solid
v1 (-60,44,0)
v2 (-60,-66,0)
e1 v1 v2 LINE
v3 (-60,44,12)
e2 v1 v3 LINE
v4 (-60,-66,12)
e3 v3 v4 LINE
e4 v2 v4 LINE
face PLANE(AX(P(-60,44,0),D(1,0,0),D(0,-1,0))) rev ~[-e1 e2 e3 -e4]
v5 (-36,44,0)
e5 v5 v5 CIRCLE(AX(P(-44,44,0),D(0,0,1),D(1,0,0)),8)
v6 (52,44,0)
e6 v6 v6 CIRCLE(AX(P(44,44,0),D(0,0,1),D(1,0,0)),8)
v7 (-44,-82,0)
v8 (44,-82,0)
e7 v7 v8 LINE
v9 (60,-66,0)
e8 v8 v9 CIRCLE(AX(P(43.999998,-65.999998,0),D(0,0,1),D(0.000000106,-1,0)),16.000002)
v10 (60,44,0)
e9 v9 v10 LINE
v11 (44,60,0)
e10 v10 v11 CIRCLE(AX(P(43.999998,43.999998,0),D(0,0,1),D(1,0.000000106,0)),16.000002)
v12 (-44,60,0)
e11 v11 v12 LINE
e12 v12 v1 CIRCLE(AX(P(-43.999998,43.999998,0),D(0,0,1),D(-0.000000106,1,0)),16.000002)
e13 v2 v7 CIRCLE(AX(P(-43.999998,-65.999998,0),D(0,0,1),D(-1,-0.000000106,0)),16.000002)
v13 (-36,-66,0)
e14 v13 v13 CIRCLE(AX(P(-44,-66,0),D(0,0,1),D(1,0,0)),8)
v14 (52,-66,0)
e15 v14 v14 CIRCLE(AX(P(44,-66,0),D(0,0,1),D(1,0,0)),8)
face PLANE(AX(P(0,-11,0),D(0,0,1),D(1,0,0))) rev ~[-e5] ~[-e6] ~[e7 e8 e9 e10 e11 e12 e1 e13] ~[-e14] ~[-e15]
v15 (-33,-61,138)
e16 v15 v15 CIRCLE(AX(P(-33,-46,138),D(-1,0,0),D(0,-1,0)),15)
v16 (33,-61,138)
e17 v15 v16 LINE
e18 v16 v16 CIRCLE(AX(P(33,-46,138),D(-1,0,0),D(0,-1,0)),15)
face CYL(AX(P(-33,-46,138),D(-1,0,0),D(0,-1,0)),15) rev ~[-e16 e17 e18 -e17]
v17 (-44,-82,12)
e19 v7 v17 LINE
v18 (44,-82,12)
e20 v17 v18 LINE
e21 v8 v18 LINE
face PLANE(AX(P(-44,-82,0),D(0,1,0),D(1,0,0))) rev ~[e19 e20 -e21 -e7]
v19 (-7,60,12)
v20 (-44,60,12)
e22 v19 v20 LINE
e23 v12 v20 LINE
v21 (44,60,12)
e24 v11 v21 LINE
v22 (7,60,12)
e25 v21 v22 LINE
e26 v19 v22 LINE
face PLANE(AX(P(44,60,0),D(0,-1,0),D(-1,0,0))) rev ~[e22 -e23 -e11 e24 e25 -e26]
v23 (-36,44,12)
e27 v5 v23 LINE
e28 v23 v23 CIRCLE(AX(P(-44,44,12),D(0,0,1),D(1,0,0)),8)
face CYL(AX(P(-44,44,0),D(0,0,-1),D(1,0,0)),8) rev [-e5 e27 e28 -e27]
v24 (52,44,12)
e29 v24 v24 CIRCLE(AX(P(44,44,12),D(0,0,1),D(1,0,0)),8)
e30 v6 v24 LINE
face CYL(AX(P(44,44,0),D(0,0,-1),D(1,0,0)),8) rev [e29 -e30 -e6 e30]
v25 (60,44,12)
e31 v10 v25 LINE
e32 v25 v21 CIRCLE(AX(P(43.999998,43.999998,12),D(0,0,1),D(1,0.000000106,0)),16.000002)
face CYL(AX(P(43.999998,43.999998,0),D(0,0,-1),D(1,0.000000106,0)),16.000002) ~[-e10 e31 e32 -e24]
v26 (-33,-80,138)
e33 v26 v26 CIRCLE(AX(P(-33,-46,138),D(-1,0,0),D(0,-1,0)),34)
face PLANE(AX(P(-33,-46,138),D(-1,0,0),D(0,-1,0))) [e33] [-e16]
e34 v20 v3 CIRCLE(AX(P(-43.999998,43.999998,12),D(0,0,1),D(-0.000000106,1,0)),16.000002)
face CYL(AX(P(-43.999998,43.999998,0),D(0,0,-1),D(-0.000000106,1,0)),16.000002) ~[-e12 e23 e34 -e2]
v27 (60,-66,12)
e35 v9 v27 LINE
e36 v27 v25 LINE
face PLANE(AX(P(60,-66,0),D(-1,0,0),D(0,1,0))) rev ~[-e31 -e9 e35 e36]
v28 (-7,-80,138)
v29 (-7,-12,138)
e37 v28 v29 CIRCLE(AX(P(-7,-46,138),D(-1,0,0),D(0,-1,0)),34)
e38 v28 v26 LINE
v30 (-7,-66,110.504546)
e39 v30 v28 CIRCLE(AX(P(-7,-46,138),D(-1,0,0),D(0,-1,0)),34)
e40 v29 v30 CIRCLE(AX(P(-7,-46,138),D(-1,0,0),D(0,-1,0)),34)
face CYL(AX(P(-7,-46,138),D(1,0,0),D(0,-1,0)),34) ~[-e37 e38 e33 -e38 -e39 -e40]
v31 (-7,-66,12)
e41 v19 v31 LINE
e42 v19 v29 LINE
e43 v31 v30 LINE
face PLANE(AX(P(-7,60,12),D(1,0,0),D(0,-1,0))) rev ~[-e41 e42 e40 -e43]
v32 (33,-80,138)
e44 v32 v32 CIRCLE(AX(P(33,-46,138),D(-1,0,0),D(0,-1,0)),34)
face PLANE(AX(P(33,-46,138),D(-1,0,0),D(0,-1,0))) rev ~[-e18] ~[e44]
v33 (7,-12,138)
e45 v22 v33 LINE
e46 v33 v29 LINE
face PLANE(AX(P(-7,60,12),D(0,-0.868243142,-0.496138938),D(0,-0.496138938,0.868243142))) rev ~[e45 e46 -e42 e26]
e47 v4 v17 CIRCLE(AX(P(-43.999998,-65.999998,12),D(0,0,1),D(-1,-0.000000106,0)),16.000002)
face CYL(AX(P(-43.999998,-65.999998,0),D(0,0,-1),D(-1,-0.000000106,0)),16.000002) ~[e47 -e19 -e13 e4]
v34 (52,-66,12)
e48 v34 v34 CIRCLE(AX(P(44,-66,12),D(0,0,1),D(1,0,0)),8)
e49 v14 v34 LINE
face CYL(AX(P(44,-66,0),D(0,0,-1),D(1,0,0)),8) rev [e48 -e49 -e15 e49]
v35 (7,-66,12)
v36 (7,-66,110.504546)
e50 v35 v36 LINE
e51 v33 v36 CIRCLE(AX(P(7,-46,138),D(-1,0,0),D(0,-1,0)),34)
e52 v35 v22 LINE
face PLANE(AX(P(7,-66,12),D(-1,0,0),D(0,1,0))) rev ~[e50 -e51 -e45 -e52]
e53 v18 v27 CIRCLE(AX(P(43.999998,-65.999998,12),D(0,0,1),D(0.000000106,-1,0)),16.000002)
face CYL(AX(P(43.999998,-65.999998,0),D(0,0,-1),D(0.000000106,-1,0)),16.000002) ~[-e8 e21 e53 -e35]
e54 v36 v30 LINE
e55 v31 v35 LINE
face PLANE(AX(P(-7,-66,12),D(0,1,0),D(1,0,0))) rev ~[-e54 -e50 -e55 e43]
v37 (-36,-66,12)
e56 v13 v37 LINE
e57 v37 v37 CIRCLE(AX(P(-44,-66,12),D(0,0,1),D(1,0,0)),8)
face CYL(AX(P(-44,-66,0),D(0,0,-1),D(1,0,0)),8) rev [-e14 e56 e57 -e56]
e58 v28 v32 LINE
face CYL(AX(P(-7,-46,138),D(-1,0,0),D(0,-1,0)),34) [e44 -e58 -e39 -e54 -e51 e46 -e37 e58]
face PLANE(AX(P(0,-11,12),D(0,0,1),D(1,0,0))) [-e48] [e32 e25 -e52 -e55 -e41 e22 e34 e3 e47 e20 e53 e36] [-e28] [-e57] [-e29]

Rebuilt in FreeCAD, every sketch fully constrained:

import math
import FreeCAD as App
import Part
import Sketcher
from FreeCAD import Vector
Q = App.Units.Quantity

doc = App.newDocument("Part")
body = doc.addObject("PartDesign::Body", "Body")

sketch1 = doc.addObject("Sketcher::SketchObject", "Sketch")
body.addObject(sketch1)
sketch1.AttachmentSupport = (doc.XY_Plane, [""])
sketch1.MapMode = "FlatFace"
sketch1.addGeometry(Part.ArcOfCircle(Part.Circle(Vector(-43.999998, -65.999998, 0), Vector(0, 0, 1), 16.000002), math.radians(-179.999994), math.radians(-90.000006)), False)
sketch1.addGeometry(Part.LineSegment(Vector(-44, -82, 0), Vector(44, -82, 0)), False)
sketch1.addGeometry(Part.ArcOfCircle(Part.Circle(Vector(43.999998, -65.999998, 0), Vector(0, 0, 1), 16.000002), math.radians(-89.999994), math.radians(-0.000006)), False)
sketch1.addGeometry(Part.LineSegment(Vector(60, -66, 0), Vector(60, 44, 0)), False)
sketch1.addGeometry(Part.ArcOfCircle(Part.Circle(Vector(43.999998, 43.999998, 0), Vector(0, 0, 1), 16.000002), math.radians(0.000006), math.radians(89.999994)), False)
sketch1.addGeometry(Part.LineSegment(Vector(44, 60, 0), Vector(-44, 60, 0)), False)
sketch1.addGeometry(Part.ArcOfCircle(Part.Circle(Vector(-43.999998, 43.999998, 0), Vector(0, 0, 1), 16.000002), math.radians(90.000006), math.radians(179.999994)), False)
sketch1.addGeometry(Part.LineSegment(Vector(-60, 44, 0), Vector(-60, -66, 0)), False)
sketch1.addGeometry(Part.Circle(Vector(-44, -66, 0), Vector(0, 0, 1), 8), False)
sketch1.addGeometry(Part.Circle(Vector(44, -66, 0), Vector(0, 0, 1), 8), False)
sketch1.addGeometry(Part.Circle(Vector(-44, 44, 0), Vector(0, 0, 1), 8), False)
sketch1.addGeometry(Part.Circle(Vector(44, 44, 0), Vector(0, 0, 1), 8), False)
sketch1.addConstraint(Sketcher.Constraint("Tangent", 0, 2, 1, 1))
sketch1.addConstraint(Sketcher.Constraint("Tangent", 1, 2, 2, 1))
sketch1.addConstraint(Sketcher.Constraint("Tangent", 2, 2, 3, 1))
sketch1.addConstraint(Sketcher.Constraint("Tangent", 3, 2, 4, 1))
sketch1.addConstraint(Sketcher.Constraint("Tangent", 4, 2, 5, 1))
sketch1.addConstraint(Sketcher.Constraint("Tangent", 5, 2, 6, 1))
sketch1.addConstraint(Sketcher.Constraint("Tangent", 6, 2, 7, 1))
sketch1.addConstraint(Sketcher.Constraint("Tangent", 7, 2, 0, 1))
sketch1.addConstraint(Sketcher.Constraint("Horizontal", 1))
sketch1.addConstraint(Sketcher.Constraint("Vertical", 3))
sketch1.addConstraint(Sketcher.Constraint("Horizontal", 5))
sketch1.addConstraint(Sketcher.Constraint("Vertical", 7))
sketch1.addConstraint(Sketcher.Constraint("Coincident", 8, 3, 0, 3))
sketch1.addConstraint(Sketcher.Constraint("Coincident", 9, 3, 2, 3))
sketch1.addConstraint(Sketcher.Constraint("Coincident", 10, 3, 6, 3))
sketch1.addConstraint(Sketcher.Constraint("Coincident", 11, 3, 4, 3))
sketch1.addConstraint(Sketcher.Constraint("Equal", 0, 2))
sketch1.addConstraint(Sketcher.Constraint("Equal", 2, 4))
sketch1.addConstraint(Sketcher.Constraint("Equal", 4, 6))
sketch1.addConstraint(Sketcher.Constraint("Equal", 8, 9))
sketch1.addConstraint(Sketcher.Constraint("Equal", 9, 10))
sketch1.addConstraint(Sketcher.Constraint("Equal", 10, 11))
sketch1.addConstraint(Sketcher.Constraint("Diameter", 8, Q("16 mm")))
sketch1.addConstraint(Sketcher.Constraint("Radius", 0, Q("16.000002 mm")))
sketch1.addConstraint(Sketcher.Constraint("DistanceX", 1, 1, 1, 2, Q("88 mm")))
sketch1.addConstraint(Sketcher.Constraint("DistanceY", 3, 1, 3, 2, Q("110 mm")))
sketch1.addConstraint(Sketcher.Constraint("DistanceX", 0, 3, -1, 1, Q("43.999998 mm")))
sketch1.addConstraint(Sketcher.Constraint("DistanceY", 0, 3, -1, 1, Q("65.999998 mm")))
pad1 = doc.addObject("PartDesign::Pad", "Pad")
body.addObject(pad1)
pad1.Profile = sketch1
pad1.Length = 12

sketch2 = doc.addObject("Sketcher::SketchObject", "Sketch001")
body.addObject(sketch2)
sketch2.AttachmentSupport = (doc.XY_Plane, [""])
sketch2.MapMode = "FlatFace"
sketch2.AttachmentOffset = App.Placement(Vector(0, 0, 12), App.Rotation())
sketch2.addGeometry(Part.LineSegment(Vector(7, 60, 0), Vector(-7, 60, 0)), False)
sketch2.addGeometry(Part.LineSegment(Vector(-7, 60, 0), Vector(-7, -66, 0)), False)
sketch2.addGeometry(Part.LineSegment(Vector(-7, -66, 0), Vector(7, -66, 0)), False)
sketch2.addGeometry(Part.LineSegment(Vector(7, -66, 0), Vector(7, 60, 0)), False)
sketch2.addConstraint(Sketcher.Constraint("Coincident", 0, 2, 1, 1))
sketch2.addConstraint(Sketcher.Constraint("Coincident", 1, 2, 2, 1))
sketch2.addConstraint(Sketcher.Constraint("Coincident", 2, 2, 3, 1))
sketch2.addConstraint(Sketcher.Constraint("Coincident", 3, 2, 0, 1))
sketch2.addConstraint(Sketcher.Constraint("Horizontal", 0))
sketch2.addConstraint(Sketcher.Constraint("Vertical", 1))
sketch2.addConstraint(Sketcher.Constraint("Horizontal", 2))
sketch2.addConstraint(Sketcher.Constraint("Vertical", 3))
sketch2.addConstraint(Sketcher.Constraint("DistanceX", 0, 2, 0, 1, Q("14 mm")))
sketch2.addConstraint(Sketcher.Constraint("DistanceY", 1, 2, 1, 1, Q("126 mm")))
sketch2.addConstraint(Sketcher.Constraint("DistanceX", 0, 2, -1, 1, Q("7 mm")))
sketch2.addConstraint(Sketcher.Constraint("DistanceY", -1, 1, 0, 2, Q("60 mm")))
pad2 = doc.addObject("PartDesign::Pad", "Pad001")
body.addObject(pad2)
pad2.Profile = sketch2
pad2.Length = 126

sketch3 = doc.addObject("Sketcher::SketchObject", "Sketch002")
body.addObject(sketch3)
sketch3.AttachmentSupport = (doc.YZ_Plane, [""])
sketch3.MapMode = "FlatFace"
sketch3.AttachmentOffset = App.Placement(Vector(0, 0, -7), App.Rotation())
sketch3.addGeometry(Part.Circle(Vector(-46, 138, 0), Vector(0, 0, 1), 34), False)
sketch3.addConstraint(Sketcher.Constraint("Diameter", 0, Q("68 mm")))
sketch3.addConstraint(Sketcher.Constraint("DistanceX", 0, 3, -1, 1, Q("46 mm")))
sketch3.addConstraint(Sketcher.Constraint("DistanceY", -1, 1, 0, 3, Q("138 mm")))
pad3 = doc.addObject("PartDesign::Pad", "Pad002")
body.addObject(pad3)
pad3.Profile = sketch3
pad3.Length = 26
pad3.Reversed = True

sketch4 = doc.addObject("Sketcher::SketchObject", "Sketch003")
body.addObject(sketch4)
sketch4.AttachmentSupport = (doc.YZ_Plane, [""])
sketch4.MapMode = "FlatFace"
sketch4.AttachmentOffset = App.Placement(Vector(0, 0, -7), App.Rotation())
sketch4.addGeometry(Part.Circle(Vector(-46, 138, 0), Vector(0, 0, 1), 34), False)
sketch4.addConstraint(Sketcher.Constraint("Diameter", 0, Q("68 mm")))
sketch4.addConstraint(Sketcher.Constraint("DistanceX", 0, 3, -1, 1, Q("46 mm")))
sketch4.addConstraint(Sketcher.Constraint("DistanceY", -1, 1, 0, 3, Q("138 mm")))
pad4 = doc.addObject("PartDesign::Pad", "Pad003")
body.addObject(pad4)
pad4.Profile = sketch4
pad4.Length = 40

sketch5 = doc.addObject("Sketcher::SketchObject", "Sketch004")
body.addObject(sketch5)
sketch5.AttachmentSupport = (doc.YZ_Plane, [""])
sketch5.MapMode = "FlatFace"
sketch5.AttachmentOffset = App.Placement(Vector(0, 0, -33), App.Rotation())
sketch5.addGeometry(Part.Circle(Vector(-46, 138, 0), Vector(0, 0, 1), 15), False)
sketch5.addConstraint(Sketcher.Constraint("Diameter", 0, Q("30 mm")))
sketch5.addConstraint(Sketcher.Constraint("DistanceX", 0, 3, -1, 1, Q("46 mm")))
sketch5.addConstraint(Sketcher.Constraint("DistanceY", -1, 1, 0, 3, Q("138 mm")))
pocket1 = doc.addObject("PartDesign::Pocket", "Pocket")
body.addObject(pocket1)
pocket1.Profile = sketch5
pocket1.Length = 66
pocket1.Reversed = True

sketch6 = doc.addObject("Sketcher::SketchObject", "Sketch005")
body.addObject(sketch6)
sketch6.AttachmentSupport = (doc.YZ_Plane, [""])
sketch6.MapMode = "FlatFace"
sketch6.AttachmentOffset = App.Placement(Vector(0, 0, -7), App.Rotation())
sketch6.addGeometry(Part.LineSegment(Vector(60, 12, 0), Vector(-12, 138, 0)), False)
sketch6.addGeometry(Part.LineSegment(Vector(-12, 138, 0), Vector(60, 138, 0)), False)
sketch6.addGeometry(Part.LineSegment(Vector(60, 138, 0), Vector(60, 12, 0)), False)
sketch6.addConstraint(Sketcher.Constraint("Coincident", 0, 2, 1, 1))
sketch6.addConstraint(Sketcher.Constraint("Coincident", 1, 2, 2, 1))
sketch6.addConstraint(Sketcher.Constraint("Coincident", 2, 2, 0, 1))
sketch6.addConstraint(Sketcher.Constraint("Horizontal", 1))
sketch6.addConstraint(Sketcher.Constraint("Vertical", 2))
sketch6.addConstraint(Sketcher.Constraint("DistanceX", 1, 1, 1, 2, Q("72 mm")))
sketch6.addConstraint(Sketcher.Constraint("DistanceY", 2, 2, 2, 1, Q("126 mm")))
sketch6.addConstraint(Sketcher.Constraint("DistanceX", 0, 2, -1, 1, Q("12 mm")))
sketch6.addConstraint(Sketcher.Constraint("DistanceY", -1, 1, 0, 2, Q("138 mm")))
pocket2 = doc.addObject("PartDesign::Pocket", "Pocket001")
body.addObject(pocket2)
pocket2.Profile = sketch6
pocket2.Length = 14
pocket2.Reversed = True

doc.recompute()
